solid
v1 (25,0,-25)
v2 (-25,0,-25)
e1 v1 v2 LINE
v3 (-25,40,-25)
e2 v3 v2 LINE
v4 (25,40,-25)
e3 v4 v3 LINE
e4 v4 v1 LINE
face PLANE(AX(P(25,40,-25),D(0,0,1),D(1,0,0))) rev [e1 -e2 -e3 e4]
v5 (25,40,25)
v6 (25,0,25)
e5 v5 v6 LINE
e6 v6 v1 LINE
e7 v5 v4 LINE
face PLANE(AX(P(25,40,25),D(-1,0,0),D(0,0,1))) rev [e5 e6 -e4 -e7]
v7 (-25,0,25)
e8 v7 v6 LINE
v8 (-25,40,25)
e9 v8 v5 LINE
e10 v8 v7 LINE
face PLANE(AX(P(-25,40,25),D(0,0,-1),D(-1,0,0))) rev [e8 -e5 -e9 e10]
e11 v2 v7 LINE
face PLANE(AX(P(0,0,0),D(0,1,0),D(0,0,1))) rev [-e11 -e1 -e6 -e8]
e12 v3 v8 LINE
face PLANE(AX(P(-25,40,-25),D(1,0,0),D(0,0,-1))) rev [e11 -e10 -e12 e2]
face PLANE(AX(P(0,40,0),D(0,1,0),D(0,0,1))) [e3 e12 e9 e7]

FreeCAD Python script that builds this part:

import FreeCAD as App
import Part
import Sketcher

V = App.Vector
Q = App.Units.Quantity


def add_polygon(sketch, points):
    """Adds a closed chain of lines whose ends are joined by coincident constraints."""
    first, n = sketch.GeometryCount, len(points)
    for a, b in zip(points, points[1:] + points[:1]):
        sketch.addGeometry(Part.LineSegment(App.Vector(*a, 0), App.Vector(*b, 0)), False)
    for i in range(n):
        sketch.addConstraint(Sketcher.Constraint("Coincident", first + i, 2, first + (i + 1) % n, 1))

doc = App.newDocument("Part")
params = doc.addObject("Spreadsheet::Sheet", "Params")
for row, (alias, value) in enumerate([
    ("sketch1_width", "50 mm"),
    ("pad1_length", "40 mm"),
], start=1):
    params.set(f"A{row}", alias)
    params.set(f"B{row}", "=" + value)
    params.setAlias(f"B{row}", alias)

body = doc.addObject("PartDesign::Body", "Body")

# Sketch on XZ plane
sketch1 = body.newObject("Sketcher::SketchObject", "Sketch")
sketch1.AttachmentSupport = (doc.getObject("XZ_Plane"), [""])
sketch1.MapMode = "FlatFace"
add_polygon(sketch1, [(-25, -25), (-25, 25), (25, 25), (25, -25)])  # lines 0-3
sketch1.addConstraint([
    Sketcher.Constraint("Vertical", 0),
    Sketcher.Constraint("Horizontal", 1),
    Sketcher.Constraint("Vertical", 2),
    Sketcher.Constraint("Horizontal", 3),
    Sketcher.Constraint("Symmetric", 0, 2, 2, 2, -1, 1),
    Sketcher.Constraint("Equal", 3, 0),
    Sketcher.Constraint("DistanceX", 1, 1, 1, 2, Q("50 mm")),
])
sketch1.setExpression("Constraints[10]", "Params.sketch1_width")
pad1 = body.newObject("PartDesign::Pad", "Pad")
pad1.Profile = sketch1
pad1.setExpression("Length", "Params.pad1_length")
pad1.Reversed = True

doc.recompute()
